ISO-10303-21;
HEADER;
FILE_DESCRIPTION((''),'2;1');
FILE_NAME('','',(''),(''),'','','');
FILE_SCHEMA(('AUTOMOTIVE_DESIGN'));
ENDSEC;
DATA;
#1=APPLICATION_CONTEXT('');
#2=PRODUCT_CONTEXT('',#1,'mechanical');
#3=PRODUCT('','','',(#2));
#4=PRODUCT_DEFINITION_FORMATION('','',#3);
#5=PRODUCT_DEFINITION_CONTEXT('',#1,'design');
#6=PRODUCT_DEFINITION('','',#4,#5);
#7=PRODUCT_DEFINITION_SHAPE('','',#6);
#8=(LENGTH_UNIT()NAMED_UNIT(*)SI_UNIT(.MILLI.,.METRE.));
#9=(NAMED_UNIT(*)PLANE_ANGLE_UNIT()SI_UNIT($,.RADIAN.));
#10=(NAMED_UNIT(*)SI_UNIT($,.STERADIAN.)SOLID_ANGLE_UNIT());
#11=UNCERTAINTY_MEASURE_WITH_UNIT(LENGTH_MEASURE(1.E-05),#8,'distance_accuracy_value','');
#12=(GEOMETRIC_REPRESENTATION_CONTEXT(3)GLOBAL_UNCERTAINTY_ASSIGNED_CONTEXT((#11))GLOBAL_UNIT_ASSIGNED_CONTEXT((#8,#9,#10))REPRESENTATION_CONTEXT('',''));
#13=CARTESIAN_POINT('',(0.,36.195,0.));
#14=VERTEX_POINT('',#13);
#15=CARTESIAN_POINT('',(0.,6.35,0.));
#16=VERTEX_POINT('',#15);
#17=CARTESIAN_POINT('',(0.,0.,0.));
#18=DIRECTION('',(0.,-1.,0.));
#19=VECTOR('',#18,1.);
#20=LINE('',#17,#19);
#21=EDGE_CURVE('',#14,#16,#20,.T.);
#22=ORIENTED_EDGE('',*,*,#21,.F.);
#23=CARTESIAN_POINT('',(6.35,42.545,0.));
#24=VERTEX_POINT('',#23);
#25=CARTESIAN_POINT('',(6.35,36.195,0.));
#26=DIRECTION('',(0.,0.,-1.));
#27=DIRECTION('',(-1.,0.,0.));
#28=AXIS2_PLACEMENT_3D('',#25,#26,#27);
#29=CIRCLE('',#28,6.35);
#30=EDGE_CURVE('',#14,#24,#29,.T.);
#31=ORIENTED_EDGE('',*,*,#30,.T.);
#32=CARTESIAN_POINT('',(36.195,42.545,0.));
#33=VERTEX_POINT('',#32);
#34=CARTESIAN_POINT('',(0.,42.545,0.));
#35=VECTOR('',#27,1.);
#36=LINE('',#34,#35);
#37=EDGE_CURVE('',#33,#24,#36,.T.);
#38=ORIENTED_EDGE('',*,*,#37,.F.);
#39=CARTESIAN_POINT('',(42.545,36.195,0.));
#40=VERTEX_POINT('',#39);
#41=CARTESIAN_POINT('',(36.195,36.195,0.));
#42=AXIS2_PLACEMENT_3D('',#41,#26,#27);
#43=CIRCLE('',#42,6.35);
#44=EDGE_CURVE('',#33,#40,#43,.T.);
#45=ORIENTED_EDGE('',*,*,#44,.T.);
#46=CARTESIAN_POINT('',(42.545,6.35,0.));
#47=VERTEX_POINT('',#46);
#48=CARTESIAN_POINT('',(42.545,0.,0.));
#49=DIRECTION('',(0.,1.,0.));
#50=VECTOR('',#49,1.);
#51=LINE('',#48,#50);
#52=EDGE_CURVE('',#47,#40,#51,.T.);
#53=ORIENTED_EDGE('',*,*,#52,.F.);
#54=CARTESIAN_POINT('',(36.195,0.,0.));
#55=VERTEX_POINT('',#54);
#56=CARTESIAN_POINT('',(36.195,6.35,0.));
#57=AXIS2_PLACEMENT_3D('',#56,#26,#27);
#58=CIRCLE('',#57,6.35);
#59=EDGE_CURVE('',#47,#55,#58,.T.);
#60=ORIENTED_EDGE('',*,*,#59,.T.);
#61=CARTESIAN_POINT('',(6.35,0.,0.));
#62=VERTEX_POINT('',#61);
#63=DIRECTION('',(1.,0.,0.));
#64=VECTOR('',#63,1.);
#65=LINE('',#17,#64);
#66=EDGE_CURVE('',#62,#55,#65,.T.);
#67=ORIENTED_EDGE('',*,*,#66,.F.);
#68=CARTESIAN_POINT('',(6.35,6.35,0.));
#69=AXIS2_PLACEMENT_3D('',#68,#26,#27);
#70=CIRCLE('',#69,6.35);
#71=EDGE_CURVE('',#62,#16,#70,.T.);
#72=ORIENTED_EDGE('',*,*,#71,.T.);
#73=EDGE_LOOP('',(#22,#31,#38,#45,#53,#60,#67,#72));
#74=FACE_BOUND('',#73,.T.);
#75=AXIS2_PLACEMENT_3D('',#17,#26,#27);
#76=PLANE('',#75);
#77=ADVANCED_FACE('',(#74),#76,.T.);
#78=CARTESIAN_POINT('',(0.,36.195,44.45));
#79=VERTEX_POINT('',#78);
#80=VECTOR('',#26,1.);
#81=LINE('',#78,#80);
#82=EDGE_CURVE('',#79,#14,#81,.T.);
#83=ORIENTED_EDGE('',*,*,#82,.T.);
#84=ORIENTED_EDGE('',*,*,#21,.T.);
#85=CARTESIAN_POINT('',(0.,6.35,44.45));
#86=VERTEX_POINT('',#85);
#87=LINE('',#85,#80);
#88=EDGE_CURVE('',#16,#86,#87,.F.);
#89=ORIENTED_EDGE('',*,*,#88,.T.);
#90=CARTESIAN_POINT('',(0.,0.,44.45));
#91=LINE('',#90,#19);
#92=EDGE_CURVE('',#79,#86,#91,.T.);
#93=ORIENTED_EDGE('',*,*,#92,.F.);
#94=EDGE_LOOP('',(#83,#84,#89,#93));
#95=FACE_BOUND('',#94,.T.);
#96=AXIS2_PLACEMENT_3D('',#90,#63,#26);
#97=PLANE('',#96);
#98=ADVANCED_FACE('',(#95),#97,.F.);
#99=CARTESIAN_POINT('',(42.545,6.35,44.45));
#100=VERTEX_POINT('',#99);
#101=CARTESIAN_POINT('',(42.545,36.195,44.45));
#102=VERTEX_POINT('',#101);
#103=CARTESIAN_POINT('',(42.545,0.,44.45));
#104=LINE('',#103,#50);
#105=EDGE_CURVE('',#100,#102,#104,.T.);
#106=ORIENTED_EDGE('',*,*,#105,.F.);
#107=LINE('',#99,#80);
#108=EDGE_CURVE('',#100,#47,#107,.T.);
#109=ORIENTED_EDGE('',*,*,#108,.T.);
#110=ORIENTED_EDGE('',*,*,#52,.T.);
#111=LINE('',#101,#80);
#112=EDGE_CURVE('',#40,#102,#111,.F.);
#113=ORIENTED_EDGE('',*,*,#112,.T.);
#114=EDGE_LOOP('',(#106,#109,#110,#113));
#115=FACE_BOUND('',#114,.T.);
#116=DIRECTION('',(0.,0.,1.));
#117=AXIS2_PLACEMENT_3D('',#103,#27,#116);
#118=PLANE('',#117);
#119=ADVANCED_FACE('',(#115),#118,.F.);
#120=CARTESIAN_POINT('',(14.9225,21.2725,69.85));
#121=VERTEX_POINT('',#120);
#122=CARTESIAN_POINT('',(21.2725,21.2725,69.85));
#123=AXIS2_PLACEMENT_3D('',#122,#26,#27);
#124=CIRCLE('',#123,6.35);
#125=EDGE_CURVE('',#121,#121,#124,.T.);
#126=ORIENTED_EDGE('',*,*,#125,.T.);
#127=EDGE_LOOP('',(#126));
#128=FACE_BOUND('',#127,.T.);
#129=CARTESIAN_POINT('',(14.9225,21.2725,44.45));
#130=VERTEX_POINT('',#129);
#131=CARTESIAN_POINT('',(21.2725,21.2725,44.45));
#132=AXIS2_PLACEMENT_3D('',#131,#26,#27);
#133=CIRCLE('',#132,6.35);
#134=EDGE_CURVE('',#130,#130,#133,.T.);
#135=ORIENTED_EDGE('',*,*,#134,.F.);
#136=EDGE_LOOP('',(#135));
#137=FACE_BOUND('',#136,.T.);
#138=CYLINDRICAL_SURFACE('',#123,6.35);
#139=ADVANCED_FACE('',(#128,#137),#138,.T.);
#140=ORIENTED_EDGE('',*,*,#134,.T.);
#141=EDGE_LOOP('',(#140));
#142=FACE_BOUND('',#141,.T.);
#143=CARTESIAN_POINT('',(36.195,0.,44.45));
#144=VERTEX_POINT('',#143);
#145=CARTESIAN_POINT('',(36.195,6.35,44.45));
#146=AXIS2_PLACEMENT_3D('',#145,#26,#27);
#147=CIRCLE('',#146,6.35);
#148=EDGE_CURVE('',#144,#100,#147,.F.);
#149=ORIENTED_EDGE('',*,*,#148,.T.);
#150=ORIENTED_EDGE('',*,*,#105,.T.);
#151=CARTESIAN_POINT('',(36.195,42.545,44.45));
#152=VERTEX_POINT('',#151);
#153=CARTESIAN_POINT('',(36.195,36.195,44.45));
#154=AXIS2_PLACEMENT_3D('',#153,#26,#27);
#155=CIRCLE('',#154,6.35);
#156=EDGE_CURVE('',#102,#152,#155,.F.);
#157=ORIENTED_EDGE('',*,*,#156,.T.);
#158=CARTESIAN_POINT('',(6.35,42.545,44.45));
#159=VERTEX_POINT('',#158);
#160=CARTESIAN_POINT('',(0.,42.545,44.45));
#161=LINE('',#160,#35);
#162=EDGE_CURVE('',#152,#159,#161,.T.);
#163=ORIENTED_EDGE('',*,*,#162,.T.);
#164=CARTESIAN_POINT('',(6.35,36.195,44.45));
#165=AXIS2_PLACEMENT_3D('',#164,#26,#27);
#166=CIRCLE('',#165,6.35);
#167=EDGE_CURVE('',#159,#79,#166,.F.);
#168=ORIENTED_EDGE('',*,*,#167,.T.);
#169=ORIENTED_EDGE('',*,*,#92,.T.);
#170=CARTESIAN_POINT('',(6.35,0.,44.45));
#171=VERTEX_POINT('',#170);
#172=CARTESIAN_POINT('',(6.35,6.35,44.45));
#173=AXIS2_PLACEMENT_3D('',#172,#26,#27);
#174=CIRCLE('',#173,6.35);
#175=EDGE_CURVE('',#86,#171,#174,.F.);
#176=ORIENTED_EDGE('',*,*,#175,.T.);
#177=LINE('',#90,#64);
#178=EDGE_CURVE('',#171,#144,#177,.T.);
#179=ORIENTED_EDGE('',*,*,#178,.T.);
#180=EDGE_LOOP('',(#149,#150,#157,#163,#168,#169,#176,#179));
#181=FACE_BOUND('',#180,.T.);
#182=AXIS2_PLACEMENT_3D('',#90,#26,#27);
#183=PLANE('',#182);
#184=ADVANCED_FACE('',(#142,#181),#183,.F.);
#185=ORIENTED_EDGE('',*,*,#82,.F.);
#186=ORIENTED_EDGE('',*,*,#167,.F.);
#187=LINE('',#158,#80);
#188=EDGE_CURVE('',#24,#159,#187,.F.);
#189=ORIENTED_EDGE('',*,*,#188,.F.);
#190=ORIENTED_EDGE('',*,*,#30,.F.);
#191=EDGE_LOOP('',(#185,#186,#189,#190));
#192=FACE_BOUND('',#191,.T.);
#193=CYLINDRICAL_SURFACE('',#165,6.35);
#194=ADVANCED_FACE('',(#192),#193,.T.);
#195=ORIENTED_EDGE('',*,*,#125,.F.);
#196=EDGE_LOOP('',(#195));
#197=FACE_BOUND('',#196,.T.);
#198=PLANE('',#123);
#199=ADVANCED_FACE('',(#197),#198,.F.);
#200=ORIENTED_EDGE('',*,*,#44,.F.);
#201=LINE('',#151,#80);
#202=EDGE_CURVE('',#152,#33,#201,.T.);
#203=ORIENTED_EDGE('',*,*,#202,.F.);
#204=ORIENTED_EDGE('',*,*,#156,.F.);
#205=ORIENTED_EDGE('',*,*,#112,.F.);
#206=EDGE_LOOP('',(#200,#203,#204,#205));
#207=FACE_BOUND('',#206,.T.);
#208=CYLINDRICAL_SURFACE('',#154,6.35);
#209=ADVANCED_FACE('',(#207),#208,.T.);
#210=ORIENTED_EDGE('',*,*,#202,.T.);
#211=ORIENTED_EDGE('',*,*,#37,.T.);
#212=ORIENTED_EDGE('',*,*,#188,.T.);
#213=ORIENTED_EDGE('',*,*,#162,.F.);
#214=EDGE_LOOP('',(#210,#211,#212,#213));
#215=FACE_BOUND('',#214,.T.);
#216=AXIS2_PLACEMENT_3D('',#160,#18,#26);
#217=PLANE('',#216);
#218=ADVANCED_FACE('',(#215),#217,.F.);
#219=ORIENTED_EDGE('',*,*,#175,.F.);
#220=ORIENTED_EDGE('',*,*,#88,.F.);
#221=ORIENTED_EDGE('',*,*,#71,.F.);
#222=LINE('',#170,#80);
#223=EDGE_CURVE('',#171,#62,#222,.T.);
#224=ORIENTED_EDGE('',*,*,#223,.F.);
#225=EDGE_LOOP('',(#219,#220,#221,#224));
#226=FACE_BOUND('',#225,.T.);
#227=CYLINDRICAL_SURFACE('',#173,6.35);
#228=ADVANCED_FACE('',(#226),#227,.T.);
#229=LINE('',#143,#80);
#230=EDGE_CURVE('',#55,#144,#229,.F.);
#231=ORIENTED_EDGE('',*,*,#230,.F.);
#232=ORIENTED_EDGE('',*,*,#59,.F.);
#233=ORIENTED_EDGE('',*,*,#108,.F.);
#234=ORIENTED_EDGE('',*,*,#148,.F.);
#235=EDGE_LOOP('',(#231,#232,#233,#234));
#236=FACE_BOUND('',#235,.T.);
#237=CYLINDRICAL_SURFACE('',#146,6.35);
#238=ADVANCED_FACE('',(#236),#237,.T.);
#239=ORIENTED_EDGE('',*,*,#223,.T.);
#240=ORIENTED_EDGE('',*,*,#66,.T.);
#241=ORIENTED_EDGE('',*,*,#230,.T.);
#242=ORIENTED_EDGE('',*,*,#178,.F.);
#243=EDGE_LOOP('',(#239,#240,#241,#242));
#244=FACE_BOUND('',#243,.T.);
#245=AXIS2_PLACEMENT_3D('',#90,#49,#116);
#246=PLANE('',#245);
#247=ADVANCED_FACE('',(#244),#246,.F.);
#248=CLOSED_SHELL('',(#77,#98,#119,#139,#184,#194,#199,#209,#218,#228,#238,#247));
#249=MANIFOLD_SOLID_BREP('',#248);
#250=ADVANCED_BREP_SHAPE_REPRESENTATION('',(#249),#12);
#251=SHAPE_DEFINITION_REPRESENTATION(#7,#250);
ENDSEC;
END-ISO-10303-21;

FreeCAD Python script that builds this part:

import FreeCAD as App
import Part
import Sketcher
from FreeCAD import Vector
Q = App.Units.Quantity


def edges_at(feature, points):
    """Names of the edges that pass closest to the given points."""
    edges = feature.Shape.Edges
    near = lambda p: min(range(len(edges)), key=lambda i: edges[i].distToShape(Part.Vertex(*p))[0])
    return sorted({f"Edge{near(p) + 1}" for p in points})

doc = App.newDocument("Part")
body = doc.addObject("PartDesign::Body", "Body")

sketch1 = body.newObject("Sketcher::SketchObject", "Sketch")
sketch1.AttachmentSupport = (doc.getObject("XY_Plane"), [""])
sketch1.MapMode = "FlatFace"
sketch1.addGeometry(Part.LineSegment(Vector(0, 43, 0), Vector(0, 0, 0)), False)
sketch1.addGeometry(Part.LineSegment(Vector(0, 0, 0), Vector(43, 0, 0)), False)
sketch1.addGeometry(Part.LineSegment(Vector(43, 0, 0), Vector(43, 43, 0)), False)
sketch1.addGeometry(Part.LineSegment(Vector(43, 43, 0), Vector(0, 43, 0)), False)
sketch1.addConstraint(Sketcher.Constraint("Coincident", 0, 2, 1, 1))
sketch1.addConstraint(Sketcher.Constraint("Coincident", 1, 2, 2, 1))
sketch1.addConstraint(Sketcher.Constraint("Coincident", 2, 2, 3, 1))
sketch1.addConstraint(Sketcher.Constraint("Coincident", 3, 2, 0, 1))
sketch1.addConstraint(Sketcher.Constraint("Vertical", 0))
sketch1.addConstraint(Sketcher.Constraint("Horizontal", 1))
sketch1.addConstraint(Sketcher.Constraint("Vertical", 2))
sketch1.addConstraint(Sketcher.Constraint("Horizontal", 3))
sketch1.addConstraint(Sketcher.Constraint("Coincident", 0, 2, -1, 1))
sketch1.addConstraint(Sketcher.Constraint("Equal", 3, 0))
sketch1.addConstraint(Sketcher.Constraint("DistanceX", 1, 1, 1, 2, Q("1.675 in")))
pad1 = body.newObject("PartDesign::Pad", "Pad")
pad1.Profile = sketch1
pad1.Length = Q("1.75 in")
doc.recompute()

fillet = body.newObject("PartDesign::Fillet", "Fillet")
fillet.Base = (pad1, edges_at(pad1, [
    (0, 42.545, 22.225),
    (42.545, 42.545, 22.225),
    (42.545, 0, 22.225),
    (0, 0, 22.225),
]))
fillet.Radius = Q("0.25 in")

sketch2 = body.newObject("Sketcher::SketchObject", "Sketch001")
sketch2.AttachmentSupport = (doc.getObject("XY_Plane"), [""])
sketch2.MapMode = "FlatFace"
sketch2.addGeometry(Part.Circle(Vector(21, 21, 0), Vector(0, 0, 1), 6), False)
sketch2.addConstraint(Sketcher.Constraint("Diameter", 0, Q("0.5 in")))
sketch2.addConstraint(Sketcher.Constraint("DistanceX", -1, 1, 0, 3, Q("0.8375 in")))
sketch2.addConstraint(Sketcher.Constraint("DistanceY", -1, 1, 0, 3, Q("0.8375 in")))
pad2 = body.newObject("PartDesign::Pad", "Pad001")
pad2.Profile = sketch2
pad2.Length = Q("2.75 in")

doc.recompute()
